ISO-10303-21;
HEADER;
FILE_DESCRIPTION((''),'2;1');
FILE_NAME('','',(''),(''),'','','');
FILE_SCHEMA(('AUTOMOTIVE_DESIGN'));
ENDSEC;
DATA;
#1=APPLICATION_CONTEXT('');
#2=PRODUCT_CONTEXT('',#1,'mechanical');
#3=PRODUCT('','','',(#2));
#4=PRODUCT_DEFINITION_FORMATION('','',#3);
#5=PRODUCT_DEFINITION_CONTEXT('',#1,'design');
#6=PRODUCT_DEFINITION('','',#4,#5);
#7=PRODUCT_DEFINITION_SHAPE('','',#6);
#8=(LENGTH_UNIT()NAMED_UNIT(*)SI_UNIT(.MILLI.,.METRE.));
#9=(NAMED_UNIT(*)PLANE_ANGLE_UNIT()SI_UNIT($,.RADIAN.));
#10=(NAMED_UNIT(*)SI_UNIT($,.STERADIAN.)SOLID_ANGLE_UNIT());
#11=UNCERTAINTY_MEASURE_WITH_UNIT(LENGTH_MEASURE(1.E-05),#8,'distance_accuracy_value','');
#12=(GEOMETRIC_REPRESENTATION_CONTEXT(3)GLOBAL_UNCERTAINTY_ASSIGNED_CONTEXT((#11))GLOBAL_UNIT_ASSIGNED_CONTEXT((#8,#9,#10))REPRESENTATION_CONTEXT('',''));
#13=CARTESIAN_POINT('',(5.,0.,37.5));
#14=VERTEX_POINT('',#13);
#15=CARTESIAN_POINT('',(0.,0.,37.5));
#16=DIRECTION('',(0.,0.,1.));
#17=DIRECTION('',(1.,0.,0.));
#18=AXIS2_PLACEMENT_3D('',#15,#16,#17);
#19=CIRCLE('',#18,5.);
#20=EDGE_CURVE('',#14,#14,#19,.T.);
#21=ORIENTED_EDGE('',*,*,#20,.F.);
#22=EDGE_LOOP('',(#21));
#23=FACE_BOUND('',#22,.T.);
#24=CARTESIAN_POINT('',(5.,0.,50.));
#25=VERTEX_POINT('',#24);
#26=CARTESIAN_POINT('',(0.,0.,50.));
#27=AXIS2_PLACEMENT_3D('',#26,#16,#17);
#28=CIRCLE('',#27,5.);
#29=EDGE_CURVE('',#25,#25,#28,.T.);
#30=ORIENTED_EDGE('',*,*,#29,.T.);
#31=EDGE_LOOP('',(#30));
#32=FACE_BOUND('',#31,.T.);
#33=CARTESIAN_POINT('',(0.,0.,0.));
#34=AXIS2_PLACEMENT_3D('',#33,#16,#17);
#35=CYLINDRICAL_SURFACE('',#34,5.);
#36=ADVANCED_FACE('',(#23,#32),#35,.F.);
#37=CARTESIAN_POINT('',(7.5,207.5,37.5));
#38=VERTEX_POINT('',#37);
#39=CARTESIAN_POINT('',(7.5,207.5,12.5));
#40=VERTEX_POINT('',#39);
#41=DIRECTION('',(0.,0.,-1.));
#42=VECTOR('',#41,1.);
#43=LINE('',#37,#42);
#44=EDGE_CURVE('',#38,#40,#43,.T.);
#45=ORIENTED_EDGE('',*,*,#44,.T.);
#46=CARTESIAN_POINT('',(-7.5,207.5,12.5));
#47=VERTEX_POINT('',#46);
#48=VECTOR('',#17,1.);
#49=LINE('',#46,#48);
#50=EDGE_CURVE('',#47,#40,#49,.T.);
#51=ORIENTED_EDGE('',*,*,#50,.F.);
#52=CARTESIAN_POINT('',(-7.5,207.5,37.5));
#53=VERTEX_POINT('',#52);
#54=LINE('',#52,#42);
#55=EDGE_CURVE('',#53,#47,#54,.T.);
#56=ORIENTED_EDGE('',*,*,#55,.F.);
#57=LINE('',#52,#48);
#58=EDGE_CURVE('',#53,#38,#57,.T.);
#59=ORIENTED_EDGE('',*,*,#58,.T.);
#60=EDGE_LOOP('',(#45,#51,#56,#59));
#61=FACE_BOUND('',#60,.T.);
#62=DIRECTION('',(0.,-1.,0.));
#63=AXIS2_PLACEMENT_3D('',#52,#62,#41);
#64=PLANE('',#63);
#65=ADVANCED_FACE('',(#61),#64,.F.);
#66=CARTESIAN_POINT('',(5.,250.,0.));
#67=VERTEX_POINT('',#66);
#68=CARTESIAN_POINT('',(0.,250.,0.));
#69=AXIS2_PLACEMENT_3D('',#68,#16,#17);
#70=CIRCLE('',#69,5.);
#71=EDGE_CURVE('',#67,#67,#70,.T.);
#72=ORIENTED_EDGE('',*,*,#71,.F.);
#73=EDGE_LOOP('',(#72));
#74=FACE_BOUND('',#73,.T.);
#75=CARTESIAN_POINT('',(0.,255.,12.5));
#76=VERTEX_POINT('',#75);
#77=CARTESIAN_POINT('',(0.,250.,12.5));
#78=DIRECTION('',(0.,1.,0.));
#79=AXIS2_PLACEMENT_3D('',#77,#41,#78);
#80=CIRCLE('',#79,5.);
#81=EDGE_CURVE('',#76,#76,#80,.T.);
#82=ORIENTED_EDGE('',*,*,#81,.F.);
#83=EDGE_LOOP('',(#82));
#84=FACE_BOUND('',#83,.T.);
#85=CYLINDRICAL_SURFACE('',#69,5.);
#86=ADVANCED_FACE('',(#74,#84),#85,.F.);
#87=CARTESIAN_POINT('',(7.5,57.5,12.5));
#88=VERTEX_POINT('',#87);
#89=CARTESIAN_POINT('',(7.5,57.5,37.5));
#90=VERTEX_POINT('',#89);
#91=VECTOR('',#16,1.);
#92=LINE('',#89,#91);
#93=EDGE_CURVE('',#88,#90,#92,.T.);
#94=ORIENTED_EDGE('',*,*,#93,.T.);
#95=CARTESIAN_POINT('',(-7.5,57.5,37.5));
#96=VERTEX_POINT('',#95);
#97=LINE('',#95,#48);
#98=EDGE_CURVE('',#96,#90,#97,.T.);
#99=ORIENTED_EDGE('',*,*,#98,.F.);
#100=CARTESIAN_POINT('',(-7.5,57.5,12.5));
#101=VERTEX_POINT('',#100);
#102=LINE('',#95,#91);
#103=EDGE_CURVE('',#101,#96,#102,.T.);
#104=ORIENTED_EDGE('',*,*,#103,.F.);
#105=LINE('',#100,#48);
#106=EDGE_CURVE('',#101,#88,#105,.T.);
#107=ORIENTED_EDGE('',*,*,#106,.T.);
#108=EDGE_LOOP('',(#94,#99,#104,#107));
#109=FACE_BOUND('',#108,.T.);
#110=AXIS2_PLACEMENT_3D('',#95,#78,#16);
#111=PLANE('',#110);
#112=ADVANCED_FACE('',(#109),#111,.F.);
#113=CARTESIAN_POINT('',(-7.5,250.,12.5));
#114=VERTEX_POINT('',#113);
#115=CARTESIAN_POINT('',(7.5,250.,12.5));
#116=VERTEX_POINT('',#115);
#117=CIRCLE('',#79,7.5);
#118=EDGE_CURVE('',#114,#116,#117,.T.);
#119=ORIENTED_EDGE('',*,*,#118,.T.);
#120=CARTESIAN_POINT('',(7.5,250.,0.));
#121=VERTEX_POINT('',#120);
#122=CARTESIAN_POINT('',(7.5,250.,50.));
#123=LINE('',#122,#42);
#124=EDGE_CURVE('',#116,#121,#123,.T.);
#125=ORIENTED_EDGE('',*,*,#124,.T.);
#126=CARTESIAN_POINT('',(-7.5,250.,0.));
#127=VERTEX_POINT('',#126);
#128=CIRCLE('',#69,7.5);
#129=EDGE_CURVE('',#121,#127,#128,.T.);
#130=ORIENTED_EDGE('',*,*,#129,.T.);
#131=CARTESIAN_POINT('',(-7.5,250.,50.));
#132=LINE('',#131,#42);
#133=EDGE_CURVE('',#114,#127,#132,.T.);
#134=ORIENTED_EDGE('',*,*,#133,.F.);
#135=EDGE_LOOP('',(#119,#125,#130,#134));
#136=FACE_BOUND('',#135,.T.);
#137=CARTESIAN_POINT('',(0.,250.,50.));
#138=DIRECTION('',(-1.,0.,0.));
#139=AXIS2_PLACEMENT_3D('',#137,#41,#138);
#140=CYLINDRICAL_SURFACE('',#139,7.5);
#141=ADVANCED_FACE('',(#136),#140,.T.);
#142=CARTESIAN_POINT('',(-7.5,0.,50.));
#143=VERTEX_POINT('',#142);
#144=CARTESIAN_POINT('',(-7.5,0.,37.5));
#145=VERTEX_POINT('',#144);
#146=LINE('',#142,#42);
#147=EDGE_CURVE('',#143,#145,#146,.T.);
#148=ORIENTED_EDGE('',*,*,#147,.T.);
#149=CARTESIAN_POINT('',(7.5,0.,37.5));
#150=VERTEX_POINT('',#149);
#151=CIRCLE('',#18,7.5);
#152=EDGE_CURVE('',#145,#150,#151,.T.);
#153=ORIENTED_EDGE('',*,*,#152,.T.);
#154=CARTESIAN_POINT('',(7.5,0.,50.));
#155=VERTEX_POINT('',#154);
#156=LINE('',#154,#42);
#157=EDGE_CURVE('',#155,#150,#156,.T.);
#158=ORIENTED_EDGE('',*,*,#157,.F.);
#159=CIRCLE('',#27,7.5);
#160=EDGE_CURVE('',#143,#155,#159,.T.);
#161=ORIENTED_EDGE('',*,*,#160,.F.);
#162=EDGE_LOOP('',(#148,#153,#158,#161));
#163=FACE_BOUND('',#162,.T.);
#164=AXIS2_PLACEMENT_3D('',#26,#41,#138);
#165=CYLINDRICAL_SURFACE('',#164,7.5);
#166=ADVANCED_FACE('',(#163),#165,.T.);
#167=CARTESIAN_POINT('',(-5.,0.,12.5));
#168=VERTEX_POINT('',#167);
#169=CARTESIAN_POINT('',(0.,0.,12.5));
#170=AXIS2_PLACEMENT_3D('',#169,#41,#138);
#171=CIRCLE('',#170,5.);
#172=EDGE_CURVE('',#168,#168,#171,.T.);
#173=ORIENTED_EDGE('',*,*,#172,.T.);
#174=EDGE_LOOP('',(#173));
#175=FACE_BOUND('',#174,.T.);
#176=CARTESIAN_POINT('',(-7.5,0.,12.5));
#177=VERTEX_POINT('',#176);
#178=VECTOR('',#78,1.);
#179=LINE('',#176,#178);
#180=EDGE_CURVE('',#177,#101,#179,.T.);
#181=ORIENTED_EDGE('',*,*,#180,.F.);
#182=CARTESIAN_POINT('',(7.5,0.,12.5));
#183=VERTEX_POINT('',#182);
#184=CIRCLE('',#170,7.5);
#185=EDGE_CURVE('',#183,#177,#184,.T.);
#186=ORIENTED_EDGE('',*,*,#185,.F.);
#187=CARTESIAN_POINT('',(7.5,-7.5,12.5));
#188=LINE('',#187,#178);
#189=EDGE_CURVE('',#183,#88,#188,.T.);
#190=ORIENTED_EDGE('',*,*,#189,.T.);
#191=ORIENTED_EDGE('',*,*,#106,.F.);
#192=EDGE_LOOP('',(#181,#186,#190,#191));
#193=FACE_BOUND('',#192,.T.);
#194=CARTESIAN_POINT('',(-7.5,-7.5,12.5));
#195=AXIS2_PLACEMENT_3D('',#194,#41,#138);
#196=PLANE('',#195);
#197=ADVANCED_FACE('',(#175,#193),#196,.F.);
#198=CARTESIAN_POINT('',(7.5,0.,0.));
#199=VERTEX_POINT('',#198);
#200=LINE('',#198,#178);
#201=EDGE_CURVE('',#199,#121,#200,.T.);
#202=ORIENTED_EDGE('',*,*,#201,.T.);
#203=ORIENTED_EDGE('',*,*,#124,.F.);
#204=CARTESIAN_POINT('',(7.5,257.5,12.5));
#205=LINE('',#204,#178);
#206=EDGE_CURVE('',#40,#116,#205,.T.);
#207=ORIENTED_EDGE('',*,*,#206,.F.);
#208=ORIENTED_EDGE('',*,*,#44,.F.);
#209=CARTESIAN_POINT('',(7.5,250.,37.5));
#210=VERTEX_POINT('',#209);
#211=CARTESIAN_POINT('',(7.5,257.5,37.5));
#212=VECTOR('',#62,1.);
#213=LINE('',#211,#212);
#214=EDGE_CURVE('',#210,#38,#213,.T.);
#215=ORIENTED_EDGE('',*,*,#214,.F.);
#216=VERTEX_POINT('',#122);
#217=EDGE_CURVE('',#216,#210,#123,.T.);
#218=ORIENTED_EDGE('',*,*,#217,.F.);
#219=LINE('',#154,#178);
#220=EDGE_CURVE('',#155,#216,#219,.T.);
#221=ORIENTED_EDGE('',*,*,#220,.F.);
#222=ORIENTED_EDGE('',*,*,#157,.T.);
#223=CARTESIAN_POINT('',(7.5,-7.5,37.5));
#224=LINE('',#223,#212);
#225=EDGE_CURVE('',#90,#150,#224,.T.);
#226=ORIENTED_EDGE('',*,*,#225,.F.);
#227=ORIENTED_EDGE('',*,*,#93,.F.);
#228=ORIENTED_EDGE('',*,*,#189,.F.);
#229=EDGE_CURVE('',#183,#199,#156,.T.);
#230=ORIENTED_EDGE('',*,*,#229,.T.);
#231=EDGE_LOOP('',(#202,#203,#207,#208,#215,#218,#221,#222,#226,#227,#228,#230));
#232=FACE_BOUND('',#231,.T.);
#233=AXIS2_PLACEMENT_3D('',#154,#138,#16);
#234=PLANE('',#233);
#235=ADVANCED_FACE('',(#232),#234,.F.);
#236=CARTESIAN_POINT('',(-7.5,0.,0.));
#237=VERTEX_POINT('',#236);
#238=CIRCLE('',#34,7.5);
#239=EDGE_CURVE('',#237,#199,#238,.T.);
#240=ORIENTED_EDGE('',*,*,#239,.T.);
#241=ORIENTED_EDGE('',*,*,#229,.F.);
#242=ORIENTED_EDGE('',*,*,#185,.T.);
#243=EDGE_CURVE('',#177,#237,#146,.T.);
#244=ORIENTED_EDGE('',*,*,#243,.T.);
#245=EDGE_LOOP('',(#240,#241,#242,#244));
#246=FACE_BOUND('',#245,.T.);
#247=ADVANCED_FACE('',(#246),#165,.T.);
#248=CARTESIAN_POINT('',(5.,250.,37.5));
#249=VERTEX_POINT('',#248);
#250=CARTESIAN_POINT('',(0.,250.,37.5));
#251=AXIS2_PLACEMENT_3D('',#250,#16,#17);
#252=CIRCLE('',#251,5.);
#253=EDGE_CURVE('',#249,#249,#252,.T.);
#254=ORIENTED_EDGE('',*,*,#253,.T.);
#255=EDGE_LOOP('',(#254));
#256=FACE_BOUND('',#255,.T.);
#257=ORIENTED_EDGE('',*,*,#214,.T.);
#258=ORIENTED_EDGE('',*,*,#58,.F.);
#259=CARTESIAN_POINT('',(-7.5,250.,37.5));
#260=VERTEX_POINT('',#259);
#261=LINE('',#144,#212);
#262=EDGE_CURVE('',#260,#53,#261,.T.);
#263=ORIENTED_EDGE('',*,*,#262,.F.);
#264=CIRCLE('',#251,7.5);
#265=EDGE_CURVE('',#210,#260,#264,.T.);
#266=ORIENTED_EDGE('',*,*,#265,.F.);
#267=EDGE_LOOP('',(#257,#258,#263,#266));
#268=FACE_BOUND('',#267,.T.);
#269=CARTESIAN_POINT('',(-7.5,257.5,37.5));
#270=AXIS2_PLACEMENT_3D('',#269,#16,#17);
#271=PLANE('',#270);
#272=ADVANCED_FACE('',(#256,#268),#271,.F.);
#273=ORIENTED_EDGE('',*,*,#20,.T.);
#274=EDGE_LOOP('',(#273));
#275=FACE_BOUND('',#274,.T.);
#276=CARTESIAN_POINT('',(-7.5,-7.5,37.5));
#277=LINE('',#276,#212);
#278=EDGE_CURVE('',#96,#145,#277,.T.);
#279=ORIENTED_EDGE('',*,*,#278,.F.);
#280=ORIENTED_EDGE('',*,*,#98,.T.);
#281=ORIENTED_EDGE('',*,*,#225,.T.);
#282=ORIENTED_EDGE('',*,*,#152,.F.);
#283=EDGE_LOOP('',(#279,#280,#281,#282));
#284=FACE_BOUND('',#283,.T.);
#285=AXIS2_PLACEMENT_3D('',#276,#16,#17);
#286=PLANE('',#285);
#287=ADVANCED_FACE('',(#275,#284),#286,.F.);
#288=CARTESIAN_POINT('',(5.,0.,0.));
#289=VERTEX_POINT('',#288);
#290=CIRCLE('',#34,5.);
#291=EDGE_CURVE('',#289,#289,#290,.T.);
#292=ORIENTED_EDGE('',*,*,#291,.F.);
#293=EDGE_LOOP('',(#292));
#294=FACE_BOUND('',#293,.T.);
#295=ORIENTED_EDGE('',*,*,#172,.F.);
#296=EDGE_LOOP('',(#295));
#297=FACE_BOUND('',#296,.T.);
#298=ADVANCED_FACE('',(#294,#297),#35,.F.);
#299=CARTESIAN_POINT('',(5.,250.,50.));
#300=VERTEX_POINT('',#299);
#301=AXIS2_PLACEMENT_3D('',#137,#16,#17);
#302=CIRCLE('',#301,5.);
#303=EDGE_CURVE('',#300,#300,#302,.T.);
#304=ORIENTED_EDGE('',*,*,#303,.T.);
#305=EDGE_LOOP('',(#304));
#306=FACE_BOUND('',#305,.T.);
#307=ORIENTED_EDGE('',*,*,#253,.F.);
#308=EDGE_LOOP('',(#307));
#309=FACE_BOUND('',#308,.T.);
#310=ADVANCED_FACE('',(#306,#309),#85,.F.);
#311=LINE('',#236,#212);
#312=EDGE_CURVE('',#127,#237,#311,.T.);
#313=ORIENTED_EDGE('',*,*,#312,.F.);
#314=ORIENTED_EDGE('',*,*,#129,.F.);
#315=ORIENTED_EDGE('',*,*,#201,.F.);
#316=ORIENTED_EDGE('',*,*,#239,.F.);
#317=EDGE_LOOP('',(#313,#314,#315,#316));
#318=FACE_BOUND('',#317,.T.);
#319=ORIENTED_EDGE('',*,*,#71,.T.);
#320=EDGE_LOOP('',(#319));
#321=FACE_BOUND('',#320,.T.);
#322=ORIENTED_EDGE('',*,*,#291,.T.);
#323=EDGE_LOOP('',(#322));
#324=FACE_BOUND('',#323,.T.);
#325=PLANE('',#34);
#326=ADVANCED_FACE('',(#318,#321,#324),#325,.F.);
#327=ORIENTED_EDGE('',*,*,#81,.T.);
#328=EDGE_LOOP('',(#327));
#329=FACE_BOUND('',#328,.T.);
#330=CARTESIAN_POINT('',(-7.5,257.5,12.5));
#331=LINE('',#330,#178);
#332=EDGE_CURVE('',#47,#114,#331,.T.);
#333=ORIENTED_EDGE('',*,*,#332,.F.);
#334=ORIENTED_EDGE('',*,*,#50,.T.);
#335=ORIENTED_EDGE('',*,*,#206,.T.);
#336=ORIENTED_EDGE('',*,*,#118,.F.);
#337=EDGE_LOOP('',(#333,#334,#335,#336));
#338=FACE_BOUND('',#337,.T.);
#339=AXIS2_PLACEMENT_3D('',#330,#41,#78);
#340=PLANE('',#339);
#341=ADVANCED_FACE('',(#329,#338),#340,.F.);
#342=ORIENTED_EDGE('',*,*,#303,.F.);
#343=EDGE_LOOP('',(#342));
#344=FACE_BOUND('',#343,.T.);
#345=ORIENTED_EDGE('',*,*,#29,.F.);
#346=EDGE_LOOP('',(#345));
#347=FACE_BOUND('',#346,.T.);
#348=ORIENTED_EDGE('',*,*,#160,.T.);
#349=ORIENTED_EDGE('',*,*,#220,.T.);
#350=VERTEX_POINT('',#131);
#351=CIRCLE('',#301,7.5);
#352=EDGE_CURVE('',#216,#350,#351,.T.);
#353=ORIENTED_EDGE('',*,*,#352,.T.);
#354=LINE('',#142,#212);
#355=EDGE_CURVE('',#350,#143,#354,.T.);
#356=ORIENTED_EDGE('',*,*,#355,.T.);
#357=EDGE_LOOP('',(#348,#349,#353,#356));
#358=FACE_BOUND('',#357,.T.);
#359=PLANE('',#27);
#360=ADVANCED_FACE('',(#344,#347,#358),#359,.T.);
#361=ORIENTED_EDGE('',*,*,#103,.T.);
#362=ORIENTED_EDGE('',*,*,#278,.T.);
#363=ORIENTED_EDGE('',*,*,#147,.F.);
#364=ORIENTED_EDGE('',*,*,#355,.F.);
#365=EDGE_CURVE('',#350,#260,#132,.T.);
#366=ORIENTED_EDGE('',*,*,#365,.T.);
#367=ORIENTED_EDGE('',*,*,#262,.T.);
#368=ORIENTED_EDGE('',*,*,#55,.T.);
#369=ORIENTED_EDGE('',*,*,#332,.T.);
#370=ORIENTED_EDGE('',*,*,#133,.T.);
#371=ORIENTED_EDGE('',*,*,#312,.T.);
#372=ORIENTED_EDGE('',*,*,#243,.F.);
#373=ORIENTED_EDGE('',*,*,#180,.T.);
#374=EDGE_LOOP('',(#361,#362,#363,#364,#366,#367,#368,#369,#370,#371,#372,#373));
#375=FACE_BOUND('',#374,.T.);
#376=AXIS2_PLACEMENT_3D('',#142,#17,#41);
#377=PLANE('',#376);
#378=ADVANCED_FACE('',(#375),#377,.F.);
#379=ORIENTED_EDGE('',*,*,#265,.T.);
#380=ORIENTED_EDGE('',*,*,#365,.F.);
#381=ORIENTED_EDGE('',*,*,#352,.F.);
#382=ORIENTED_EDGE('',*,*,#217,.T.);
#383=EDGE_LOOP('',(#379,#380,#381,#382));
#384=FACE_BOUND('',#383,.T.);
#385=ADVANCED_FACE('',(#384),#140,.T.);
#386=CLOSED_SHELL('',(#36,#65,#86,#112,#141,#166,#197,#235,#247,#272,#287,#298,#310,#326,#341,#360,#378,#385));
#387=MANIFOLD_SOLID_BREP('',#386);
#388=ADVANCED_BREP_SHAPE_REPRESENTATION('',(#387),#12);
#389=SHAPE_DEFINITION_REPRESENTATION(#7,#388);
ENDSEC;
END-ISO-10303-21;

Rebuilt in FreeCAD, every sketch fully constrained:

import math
import FreeCAD as App
import Part
import Sketcher
from FreeCAD import Vector
Q = App.Units.Quantity


def add_polygon(sketch, points):
    """Adds a closed chain of lines whose ends are joined by coincident constraints."""
    first, n = sketch.GeometryCount, len(points)
    for a, b in zip(points, points[1:] + points[:1]):
        sketch.addGeometry(Part.LineSegment(App.Vector(*a, 0), App.Vector(*b, 0)), False)
    for i in range(n):
        sketch.addConstraint(Sketcher.Constraint("Coincident", first + i, 2, first + (i + 1) % n, 1))

doc = App.newDocument("Part")
params = doc.addObject("Spreadsheet::Sheet", "Params")
for row, (alias, value) in enumerate([
    ("sketch1_radius", "7.5 mm"),
    ("sketch1_height", "250 mm"),
    ("pad1_length", "50 mm"),
    ("sketch2_width", "50 mm"),
    ("sketch2_width2", "65 mm"),
    ("sketch2_height", "25 mm"),
    ("sketch3_diameter", "10 mm"),
], start=1):
    params.set(f"A{row}", alias)
    params.set(f"B{row}", "=" + value)
    params.setAlias(f"B{row}", alias)

body = doc.addObject("PartDesign::Body", "Body")

# Sketch on XY plane
sketch1 = doc.addObject("Sketcher::SketchObject", "Sketch")
body.addObject(sketch1)
sketch1.AttachmentSupport = (doc.XY_Plane, [""])
sketch1.MapMode = "FlatFace"
sketch1.addGeometry([
    Part.LineSegment(Vector(-7.5, 250, 0), Vector(-7.5, 0, 0)),
    Part.ArcOfCircle(Part.Circle(Vector(0, 0, 0), Vector(0, 0, 1), 7.5), math.radians(180), math.radians(360)),
    Part.LineSegment(Vector(7.5, 0, 0), Vector(7.5, 250, 0)),
    Part.ArcOfCircle(Part.Circle(Vector(0, 250, 0), Vector(0, 0, 1), 7.5), math.radians(0), math.radians(180)),
], False)
sketch1.addConstraint([
    Sketcher.Constraint("Tangent", 0, 2, 1, 1),
    Sketcher.Constraint("Tangent", 1, 2, 2, 1),
    Sketcher.Constraint("Tangent", 2, 2, 3, 1),
    Sketcher.Constraint("Tangent", 3, 2, 0, 1),
    Sketcher.Constraint("Vertical", 0),
    Sketcher.Constraint("Vertical", 2),
    Sketcher.Constraint("Coincident", 1, 3, -1, 1),
    Sketcher.Constraint("Radius", 1, Q("7.5 mm")),
    Sketcher.Constraint("DistanceY", 0, 2, 0, 1, Q("250 mm")),
])
sketch1.setExpression("Constraints[7]", "Params.sketch1_radius")
sketch1.setExpression("Constraints[8]", "Params.sketch1_height")
pad1 = doc.addObject("PartDesign::Pad", "Pad")
body.addObject(pad1)
pad1.Profile = sketch1
pad1.setExpression("Length", "Params.pad1_length")

# Sketch on YZ plane
sketch2 = doc.addObject("Sketcher::SketchObject", "Sketch001")
body.addObject(sketch2)
sketch2.AttachmentSupport = (doc.YZ_Plane, [""])
sketch2.MapMode = "FlatFace"
sketch2.AttachmentOffset = App.Placement(Vector(0, 0, 7.5), App.Rotation())
add_polygon(sketch2, [(257.5, 37.5), (207.5, 37.5), (207.5, 12.5), (257.5, 12.5)])  # lines 0-3
add_polygon(sketch2, [(57.5, 37.5), (-7.5, 37.5), (-7.5, 12.5), (57.5, 12.5)])  # lines 4-7
sketch2.addConstraint([
    Sketcher.Constraint("Horizontal", 0),
    Sketcher.Constraint("Vertical", 1),
    Sketcher.Constraint("Horizontal", 2),
    Sketcher.Constraint("Vertical", 3),
    Sketcher.Constraint("Horizontal", 4),
    Sketcher.Constraint("Vertical", 5),
    Sketcher.Constraint("Horizontal", 6),
    Sketcher.Constraint("Vertical", 7),
    Sketcher.Constraint("Horizontal", 3, 2, 4, 2),
    Sketcher.Constraint("Horizontal", 2, 2, 5, 2),
    Sketcher.Constraint("DistanceX", 0, 2, 0, 1, Q("50 mm")),
    Sketcher.Constraint("DistanceX", 4, 2, 4, 1, Q("65 mm")),
    Sketcher.Constraint("DistanceY", 1, 2, 1, 1, Q("25 mm")),
    Sketcher.Constraint("DistanceX", 4, 2, 0, 2, Q("215 mm")),
    Sketcher.Constraint("DistanceX", -1, 1, 0, 2, Q("207.5 mm")),
    Sketcher.Constraint("DistanceY", -1, 1, 0, 2, Q("37.5 mm")),
])
sketch2.setExpression("Constraints[18]", "Params.sketch2_width")
sketch2.setExpression("Constraints[19]", "Params.sketch2_width2")
sketch2.setExpression("Constraints[20]", "Params.sketch2_height")
pocket1 = doc.addObject("PartDesign::Pocket", "Pocket")
body.addObject(pocket1)
pocket1.Profile = sketch2
pocket1.Type = "ThroughAll"

# Sketch on XY plane
sketch3 = doc.addObject("Sketcher::SketchObject", "Sketch002")
body.addObject(sketch3)
sketch3.AttachmentSupport = (doc.XY_Plane, [""])
sketch3.MapMode = "FlatFace"
sketch3.AttachmentOffset = App.Placement(Vector(0, 0, 50), App.Rotation())
sketch3.addGeometry([
    Part.Circle(Vector(0, 250, 0), Vector(0, 0, 1), 5),
    Part.Circle(Vector(0, 0, 0), Vector(0, 0, 1), 5),
], False)
sketch3.addConstraint([
    Sketcher.Constraint("Coincident", 1, 3, -1, 1),
    Sketcher.Constraint("Equal", 0, 1),
    Sketcher.Constraint("PointOnObject", 0, 3, -2),
    Sketcher.Constraint("Diameter", 0, Q("10 mm")),
    Sketcher.Constraint("DistanceY", -1, 1, 0, 3, Q("250 mm")),
])
sketch3.setExpression("Constraints[3]", "Params.sketch3_diameter")
pocket2 = doc.addObject("PartDesign::Pocket", "Pocket001")
body.addObject(pocket2)
pocket2.Profile = sketch3
pocket2.Type = "ThroughAll"

doc.recompute()
